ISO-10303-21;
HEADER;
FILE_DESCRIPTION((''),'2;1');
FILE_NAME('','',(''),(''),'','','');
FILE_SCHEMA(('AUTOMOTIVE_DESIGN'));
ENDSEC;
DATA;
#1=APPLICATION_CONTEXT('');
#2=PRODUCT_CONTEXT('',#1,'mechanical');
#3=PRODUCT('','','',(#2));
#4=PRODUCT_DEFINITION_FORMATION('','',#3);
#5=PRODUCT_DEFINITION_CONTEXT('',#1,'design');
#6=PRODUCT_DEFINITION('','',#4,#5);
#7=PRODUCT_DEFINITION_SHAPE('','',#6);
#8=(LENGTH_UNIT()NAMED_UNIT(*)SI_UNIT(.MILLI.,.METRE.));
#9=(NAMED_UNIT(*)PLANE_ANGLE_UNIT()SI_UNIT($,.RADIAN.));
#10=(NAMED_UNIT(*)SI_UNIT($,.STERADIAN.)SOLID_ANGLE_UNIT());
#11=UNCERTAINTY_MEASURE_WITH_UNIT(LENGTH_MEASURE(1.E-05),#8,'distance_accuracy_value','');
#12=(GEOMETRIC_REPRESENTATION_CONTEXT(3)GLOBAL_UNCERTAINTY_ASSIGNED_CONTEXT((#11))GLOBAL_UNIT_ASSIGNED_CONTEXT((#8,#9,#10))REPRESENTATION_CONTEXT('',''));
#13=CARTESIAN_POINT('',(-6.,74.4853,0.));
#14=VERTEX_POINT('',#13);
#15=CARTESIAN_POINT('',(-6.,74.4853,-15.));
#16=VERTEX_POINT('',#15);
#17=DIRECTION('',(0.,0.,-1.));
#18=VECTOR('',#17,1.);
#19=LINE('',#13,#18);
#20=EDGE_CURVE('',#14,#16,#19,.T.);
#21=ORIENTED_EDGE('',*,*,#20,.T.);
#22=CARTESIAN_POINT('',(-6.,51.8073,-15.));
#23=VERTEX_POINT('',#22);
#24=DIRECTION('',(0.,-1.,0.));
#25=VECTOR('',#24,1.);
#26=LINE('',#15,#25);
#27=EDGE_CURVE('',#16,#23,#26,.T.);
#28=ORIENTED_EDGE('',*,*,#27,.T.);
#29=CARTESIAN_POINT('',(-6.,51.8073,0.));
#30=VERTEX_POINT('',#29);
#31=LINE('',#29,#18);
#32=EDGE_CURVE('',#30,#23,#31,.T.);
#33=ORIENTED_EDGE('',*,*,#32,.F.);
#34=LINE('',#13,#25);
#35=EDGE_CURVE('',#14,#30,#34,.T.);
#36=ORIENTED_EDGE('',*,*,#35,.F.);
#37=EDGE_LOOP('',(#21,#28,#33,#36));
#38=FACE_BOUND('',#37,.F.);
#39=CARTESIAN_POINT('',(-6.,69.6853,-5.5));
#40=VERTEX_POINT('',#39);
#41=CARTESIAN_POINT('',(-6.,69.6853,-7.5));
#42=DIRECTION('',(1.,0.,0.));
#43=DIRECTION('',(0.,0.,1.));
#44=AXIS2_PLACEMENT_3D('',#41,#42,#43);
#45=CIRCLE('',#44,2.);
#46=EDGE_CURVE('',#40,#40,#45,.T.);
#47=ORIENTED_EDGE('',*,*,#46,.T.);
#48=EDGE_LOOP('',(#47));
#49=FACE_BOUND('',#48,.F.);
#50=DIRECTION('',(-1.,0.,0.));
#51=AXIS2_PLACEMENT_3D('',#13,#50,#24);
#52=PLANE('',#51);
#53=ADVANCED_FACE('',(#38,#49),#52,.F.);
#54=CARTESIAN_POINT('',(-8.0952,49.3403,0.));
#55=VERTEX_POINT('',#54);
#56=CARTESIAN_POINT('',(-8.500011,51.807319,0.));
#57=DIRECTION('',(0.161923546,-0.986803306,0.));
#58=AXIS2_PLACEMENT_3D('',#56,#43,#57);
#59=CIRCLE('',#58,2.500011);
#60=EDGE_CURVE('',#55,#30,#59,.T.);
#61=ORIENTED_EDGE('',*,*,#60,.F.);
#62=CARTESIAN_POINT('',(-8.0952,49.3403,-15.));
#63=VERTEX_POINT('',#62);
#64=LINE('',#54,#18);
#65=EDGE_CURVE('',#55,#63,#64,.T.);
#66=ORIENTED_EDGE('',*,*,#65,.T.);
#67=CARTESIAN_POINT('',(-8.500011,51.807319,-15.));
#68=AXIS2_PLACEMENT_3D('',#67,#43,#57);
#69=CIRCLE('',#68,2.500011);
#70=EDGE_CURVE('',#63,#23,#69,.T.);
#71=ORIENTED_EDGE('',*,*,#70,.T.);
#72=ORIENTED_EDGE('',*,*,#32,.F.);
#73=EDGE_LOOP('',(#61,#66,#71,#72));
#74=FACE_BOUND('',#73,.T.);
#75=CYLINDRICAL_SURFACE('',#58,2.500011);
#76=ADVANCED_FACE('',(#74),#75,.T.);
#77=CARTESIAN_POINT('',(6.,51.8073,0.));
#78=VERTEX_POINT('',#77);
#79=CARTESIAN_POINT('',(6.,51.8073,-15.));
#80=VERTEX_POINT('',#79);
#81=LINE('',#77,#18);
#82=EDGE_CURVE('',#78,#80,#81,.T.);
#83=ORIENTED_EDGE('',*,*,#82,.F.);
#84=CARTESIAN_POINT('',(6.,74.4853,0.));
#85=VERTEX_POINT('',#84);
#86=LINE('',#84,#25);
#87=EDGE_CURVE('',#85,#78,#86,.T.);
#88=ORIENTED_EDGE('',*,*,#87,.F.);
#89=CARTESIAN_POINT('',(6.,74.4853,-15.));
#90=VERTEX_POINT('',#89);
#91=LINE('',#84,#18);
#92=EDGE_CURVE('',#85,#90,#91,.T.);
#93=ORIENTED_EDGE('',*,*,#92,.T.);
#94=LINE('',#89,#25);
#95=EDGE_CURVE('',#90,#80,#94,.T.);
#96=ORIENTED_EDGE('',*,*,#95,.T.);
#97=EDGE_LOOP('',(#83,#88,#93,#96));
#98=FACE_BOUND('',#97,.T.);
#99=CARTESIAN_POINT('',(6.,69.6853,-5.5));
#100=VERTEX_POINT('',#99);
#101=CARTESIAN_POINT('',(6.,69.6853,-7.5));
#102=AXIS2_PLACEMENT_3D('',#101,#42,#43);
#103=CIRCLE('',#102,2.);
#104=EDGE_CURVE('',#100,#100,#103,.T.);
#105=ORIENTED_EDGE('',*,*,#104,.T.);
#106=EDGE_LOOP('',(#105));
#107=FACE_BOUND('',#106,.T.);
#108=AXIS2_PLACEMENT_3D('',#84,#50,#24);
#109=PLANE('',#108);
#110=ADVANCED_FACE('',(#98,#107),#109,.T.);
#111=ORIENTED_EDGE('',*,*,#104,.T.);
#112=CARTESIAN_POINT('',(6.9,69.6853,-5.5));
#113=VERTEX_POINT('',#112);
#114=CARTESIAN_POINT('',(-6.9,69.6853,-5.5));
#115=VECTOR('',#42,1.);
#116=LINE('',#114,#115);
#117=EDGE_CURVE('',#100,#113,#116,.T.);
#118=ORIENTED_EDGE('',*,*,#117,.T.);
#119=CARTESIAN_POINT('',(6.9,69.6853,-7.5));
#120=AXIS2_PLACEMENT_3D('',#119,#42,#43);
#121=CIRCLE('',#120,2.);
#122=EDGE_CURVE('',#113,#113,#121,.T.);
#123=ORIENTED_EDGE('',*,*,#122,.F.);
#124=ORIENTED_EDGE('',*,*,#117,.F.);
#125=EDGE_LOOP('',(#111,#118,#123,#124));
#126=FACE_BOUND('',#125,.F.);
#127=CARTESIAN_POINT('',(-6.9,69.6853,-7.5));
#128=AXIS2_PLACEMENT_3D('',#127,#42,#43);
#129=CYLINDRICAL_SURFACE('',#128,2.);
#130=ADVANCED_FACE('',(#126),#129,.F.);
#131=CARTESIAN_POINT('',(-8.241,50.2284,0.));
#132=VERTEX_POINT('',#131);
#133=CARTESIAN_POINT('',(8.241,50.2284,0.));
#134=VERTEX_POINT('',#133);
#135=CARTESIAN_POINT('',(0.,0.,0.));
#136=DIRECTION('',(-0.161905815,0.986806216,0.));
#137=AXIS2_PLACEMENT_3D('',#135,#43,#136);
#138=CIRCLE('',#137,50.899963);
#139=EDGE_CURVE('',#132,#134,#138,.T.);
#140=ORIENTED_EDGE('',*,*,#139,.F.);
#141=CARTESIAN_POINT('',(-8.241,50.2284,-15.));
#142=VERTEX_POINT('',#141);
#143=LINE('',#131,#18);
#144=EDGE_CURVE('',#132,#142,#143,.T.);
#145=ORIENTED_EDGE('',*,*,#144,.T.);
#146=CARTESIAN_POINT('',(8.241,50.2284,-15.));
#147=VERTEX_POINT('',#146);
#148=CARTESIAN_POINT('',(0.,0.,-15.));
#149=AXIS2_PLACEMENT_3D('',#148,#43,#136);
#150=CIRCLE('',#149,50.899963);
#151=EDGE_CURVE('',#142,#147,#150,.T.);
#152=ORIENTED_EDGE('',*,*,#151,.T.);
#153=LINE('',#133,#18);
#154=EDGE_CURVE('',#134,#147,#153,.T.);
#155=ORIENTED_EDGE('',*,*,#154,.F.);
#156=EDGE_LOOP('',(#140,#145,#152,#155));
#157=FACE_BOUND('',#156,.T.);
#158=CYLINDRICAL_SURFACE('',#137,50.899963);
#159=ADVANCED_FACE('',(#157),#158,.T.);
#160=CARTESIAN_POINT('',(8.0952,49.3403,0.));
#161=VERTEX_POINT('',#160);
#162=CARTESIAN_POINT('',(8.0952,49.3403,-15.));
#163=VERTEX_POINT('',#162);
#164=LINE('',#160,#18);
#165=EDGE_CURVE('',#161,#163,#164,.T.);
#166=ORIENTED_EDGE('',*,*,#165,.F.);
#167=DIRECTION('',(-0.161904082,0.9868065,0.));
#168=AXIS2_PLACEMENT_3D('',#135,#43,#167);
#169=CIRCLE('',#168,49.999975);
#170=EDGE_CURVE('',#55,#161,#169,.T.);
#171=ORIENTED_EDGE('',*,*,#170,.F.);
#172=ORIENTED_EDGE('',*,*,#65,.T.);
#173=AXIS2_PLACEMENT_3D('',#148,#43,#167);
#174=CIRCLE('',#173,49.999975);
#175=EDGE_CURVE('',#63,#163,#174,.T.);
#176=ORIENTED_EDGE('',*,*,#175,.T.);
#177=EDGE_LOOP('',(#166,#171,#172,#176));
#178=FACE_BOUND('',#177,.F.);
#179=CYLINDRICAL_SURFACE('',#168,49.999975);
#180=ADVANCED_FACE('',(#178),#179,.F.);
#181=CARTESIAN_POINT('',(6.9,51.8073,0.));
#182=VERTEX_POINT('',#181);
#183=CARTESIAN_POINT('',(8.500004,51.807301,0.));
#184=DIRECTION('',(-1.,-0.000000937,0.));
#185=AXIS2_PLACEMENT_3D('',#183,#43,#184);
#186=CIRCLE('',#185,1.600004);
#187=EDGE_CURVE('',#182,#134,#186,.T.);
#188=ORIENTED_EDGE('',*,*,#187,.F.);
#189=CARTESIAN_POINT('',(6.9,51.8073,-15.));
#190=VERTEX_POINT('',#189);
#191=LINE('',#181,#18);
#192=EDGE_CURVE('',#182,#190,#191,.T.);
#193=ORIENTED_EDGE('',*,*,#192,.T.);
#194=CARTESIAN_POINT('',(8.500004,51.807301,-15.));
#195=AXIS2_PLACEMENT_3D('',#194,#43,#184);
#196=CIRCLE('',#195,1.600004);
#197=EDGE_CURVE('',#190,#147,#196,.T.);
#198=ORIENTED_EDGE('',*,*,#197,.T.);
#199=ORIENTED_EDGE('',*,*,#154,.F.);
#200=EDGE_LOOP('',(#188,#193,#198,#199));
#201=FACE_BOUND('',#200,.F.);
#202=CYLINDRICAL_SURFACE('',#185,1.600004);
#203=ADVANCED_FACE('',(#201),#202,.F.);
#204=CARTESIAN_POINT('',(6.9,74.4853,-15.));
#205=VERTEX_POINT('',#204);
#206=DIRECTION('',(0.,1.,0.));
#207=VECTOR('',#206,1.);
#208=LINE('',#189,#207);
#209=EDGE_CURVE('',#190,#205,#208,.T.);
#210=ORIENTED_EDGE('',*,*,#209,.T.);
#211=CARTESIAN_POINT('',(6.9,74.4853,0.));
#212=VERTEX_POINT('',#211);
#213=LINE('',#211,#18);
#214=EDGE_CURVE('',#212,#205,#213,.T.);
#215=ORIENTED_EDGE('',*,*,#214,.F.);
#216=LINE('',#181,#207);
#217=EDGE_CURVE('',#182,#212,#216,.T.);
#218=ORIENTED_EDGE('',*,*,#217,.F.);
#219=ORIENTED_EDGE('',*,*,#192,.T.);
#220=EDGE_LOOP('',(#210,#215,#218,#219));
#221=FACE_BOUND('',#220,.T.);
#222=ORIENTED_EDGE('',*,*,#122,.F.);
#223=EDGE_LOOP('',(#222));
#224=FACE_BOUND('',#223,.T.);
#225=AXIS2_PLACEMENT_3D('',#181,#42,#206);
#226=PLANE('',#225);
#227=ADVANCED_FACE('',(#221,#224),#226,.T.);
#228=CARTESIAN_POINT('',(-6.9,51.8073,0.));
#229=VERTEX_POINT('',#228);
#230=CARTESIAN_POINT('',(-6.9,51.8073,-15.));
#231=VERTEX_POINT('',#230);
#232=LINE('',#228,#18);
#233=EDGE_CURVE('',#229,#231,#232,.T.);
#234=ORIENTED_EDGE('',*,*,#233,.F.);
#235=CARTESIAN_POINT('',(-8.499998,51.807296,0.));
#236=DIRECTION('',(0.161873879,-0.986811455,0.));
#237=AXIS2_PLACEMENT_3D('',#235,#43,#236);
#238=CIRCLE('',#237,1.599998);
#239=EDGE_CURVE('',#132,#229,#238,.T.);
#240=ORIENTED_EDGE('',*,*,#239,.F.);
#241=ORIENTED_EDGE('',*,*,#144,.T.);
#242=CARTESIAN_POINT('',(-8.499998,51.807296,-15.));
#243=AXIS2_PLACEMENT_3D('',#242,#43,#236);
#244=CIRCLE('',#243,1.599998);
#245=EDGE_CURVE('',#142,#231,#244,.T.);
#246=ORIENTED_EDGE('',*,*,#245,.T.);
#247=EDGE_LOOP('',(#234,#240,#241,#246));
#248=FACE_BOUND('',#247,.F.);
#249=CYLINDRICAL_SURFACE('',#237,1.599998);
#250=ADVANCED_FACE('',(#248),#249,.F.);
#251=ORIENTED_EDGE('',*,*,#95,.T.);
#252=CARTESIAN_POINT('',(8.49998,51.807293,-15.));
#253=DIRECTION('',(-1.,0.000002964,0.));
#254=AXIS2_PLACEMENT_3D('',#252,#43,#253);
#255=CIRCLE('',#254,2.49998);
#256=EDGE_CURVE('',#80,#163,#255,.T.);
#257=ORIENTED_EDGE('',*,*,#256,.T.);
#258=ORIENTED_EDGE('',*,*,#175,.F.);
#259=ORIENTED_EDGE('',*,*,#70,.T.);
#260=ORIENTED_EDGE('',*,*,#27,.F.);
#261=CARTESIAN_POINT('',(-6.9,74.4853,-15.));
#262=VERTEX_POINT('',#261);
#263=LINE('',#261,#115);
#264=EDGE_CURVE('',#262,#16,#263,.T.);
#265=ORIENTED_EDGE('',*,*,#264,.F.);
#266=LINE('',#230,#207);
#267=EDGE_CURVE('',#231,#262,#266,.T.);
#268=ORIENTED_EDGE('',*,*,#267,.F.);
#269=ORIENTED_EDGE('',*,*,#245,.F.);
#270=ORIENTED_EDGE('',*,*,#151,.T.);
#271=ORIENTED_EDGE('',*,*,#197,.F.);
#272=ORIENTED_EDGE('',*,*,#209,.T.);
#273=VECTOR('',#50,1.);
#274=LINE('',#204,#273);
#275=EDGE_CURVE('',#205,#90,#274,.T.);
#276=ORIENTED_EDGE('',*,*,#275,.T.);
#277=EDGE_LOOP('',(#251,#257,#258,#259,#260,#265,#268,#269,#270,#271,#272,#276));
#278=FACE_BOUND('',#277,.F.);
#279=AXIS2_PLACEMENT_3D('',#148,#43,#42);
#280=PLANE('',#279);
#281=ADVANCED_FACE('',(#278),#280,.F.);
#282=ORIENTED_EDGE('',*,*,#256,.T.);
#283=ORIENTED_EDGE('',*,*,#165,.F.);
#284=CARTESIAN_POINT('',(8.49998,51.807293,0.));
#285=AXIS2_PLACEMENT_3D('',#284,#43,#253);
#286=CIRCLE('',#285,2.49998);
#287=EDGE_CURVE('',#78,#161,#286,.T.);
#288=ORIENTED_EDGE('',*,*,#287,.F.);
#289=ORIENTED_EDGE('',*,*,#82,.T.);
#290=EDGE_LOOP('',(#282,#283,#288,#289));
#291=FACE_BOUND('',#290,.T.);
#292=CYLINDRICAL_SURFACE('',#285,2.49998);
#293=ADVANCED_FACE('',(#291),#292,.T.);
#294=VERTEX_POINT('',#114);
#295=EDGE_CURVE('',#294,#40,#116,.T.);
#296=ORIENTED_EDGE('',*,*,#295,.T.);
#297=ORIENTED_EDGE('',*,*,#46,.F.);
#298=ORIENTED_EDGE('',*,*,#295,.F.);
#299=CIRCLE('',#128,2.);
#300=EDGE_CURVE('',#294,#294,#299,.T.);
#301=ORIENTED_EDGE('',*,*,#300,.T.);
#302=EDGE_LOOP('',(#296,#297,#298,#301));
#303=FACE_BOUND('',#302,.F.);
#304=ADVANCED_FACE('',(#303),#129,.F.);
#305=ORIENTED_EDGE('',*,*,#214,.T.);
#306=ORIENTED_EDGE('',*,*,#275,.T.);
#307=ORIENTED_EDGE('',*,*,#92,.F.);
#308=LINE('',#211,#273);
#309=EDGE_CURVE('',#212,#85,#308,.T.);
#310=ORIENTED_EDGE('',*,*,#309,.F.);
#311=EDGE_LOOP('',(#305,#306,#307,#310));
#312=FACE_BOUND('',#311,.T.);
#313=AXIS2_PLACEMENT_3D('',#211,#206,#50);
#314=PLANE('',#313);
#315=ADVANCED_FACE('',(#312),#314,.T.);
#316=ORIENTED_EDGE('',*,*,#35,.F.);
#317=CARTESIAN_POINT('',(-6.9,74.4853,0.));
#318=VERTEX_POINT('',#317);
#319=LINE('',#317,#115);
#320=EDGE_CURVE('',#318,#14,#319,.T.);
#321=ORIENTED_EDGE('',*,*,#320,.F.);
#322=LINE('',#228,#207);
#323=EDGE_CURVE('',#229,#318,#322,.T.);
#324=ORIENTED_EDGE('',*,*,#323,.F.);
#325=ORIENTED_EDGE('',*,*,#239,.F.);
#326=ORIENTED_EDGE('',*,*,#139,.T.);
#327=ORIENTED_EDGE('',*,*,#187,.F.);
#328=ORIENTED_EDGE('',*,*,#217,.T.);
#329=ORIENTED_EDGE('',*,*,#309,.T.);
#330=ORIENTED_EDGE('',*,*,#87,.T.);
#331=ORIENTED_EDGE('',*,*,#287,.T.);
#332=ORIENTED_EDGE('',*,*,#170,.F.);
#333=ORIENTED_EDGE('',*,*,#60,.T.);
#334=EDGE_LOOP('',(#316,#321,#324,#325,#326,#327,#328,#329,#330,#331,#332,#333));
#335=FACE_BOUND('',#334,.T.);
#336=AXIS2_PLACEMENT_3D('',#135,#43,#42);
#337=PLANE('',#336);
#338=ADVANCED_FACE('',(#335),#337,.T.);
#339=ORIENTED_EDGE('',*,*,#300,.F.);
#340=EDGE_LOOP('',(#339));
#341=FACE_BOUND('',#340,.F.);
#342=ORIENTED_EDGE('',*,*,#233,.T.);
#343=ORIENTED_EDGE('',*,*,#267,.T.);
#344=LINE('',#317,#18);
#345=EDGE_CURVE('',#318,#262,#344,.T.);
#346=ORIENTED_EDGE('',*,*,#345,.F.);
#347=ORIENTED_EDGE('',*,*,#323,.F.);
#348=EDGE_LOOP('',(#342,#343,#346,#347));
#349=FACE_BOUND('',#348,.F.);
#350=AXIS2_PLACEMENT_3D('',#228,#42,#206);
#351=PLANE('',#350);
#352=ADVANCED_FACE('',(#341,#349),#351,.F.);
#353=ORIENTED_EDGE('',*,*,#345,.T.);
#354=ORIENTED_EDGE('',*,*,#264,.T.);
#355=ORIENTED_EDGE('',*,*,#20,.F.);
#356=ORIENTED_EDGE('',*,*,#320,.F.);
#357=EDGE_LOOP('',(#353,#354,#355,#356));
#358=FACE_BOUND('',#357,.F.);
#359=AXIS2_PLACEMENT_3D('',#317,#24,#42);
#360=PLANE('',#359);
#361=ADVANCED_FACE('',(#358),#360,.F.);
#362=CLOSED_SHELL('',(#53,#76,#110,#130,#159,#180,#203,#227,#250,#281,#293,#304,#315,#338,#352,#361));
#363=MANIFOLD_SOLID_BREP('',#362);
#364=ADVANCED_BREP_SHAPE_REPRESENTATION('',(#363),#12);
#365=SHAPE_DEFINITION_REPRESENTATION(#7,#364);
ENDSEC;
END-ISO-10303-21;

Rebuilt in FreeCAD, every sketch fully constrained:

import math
import FreeCAD as App
import Part
import Sketcher
from FreeCAD import Vector

doc = App.newDocument("Part")
params = doc.addObject("Spreadsheet::Sheet", "Params")
for row, (alias, value) in enumerate([
    ("sketch1_radius", "50 mm"),
    ("sketch1_radius2", "2.5 mm"),
    ("sketch1_radius3", "50.9 mm"),
    ("pad1_length", "15 mm"),
    ("sketch2_diameter", "4 mm"),
    ("hole_diameter", "4 mm"),
    ("hole_depth", "25 mm"),
], start=1):
    params.set(f"A{row}", alias)
    params.set(f"B{row}", "=" + value)
    params.setAlias(f"B{row}", alias)

body = doc.addObject("PartDesign::Body", "Body")

# Sketch on XY plane
sketch1 = body.newObject("Sketcher::SketchObject", "Sketch")
sketch1.AttachmentSupport = (doc.getObject("XY_Plane"), [""])
sketch1.MapMode = "FlatFace"
sketch1.addGeometry(Part.ArcOfCircle(Part.Circle(Vector(0, 0, 0), Vector(0, 0, 1), 49.999975), math.radians(99.317433), math.radians(440.682567)), False)
sketch1.addGeometry(Part.ArcOfCircle(Part.Circle(Vector(-8.5, 51.8073, 0), Vector(0, 0, 1), 2.49999), math.radians(-80.681606), math.radians(0)), False)
sketch1.addGeometry(Part.LineSegment(Vector(-6, 51.8073, 0), Vector(-6, 74.4853, 0)), False)
sketch1.addGeometry(Part.LineSegment(Vector(-6, 74.4853, 0), Vector(-6.9, 74.4853, 0)), False)
sketch1.addGeometry(Part.LineSegment(Vector(-6.9, 74.4853, 0), Vector(-6.9, 51.8073, 0)), False)
sketch1.addGeometry(Part.ArcOfCircle(Part.Circle(Vector(-8.5, 51.8073, 0), Vector(0, 0, 1), 1.600002), math.radians(-80.684267), math.radians(0)), False)
sketch1.addGeometry(Part.ArcOfCircle(Part.Circle(Vector(0, 0, 0), Vector(0, 0, 1), 50.899963), math.radians(99.317534), math.radians(440.682466)), False)
sketch1.addGeometry(Part.ArcOfCircle(Part.Circle(Vector(8.5, 51.8073, 0), Vector(0, 0, 1), 1.6), math.radians(180), math.radians(260.684267)), False)
sketch1.addGeometry(Part.LineSegment(Vector(6.9, 51.8073, 0), Vector(6.9, 74.4853, 0)), False)
sketch1.addGeometry(Part.LineSegment(Vector(6.9, 74.4853, 0), Vector(6, 74.4853, 0)), False)
sketch1.addGeometry(Part.LineSegment(Vector(6, 74.4853, 0), Vector(6, 51.8073, 0)), False)
sketch1.addGeometry(Part.ArcOfCircle(Part.Circle(Vector(8.5, 51.8073, 0), Vector(0, 0, 1), 2.5), math.radians(180), math.radians(260.681606)), False)
sketch1.addConstraint(Sketcher.Constraint("Tangent", 0, 1, 1, 1))
sketch1.addConstraint(Sketcher.Constraint("Tangent", 1, 2, 2, 1))
sketch1.addConstraint(Sketcher.Constraint("Coincident", 2, 2, 3, 1))
sketch1.addConstraint(Sketcher.Constraint("Coincident", 3, 2, 4, 1))
sketch1.addConstraint(Sketcher.Constraint("Tangent", 4, 2, 5, 2))
sketch1.addConstraint(Sketcher.Constraint("Tangent", 5, 1, 6, 1))
sketch1.addConstraint(Sketcher.Constraint("Tangent", 6, 2, 7, 2))
sketch1.addConstraint(Sketcher.Constraint("Tangent", 7, 1, 8, 1))
sketch1.addConstraint(Sketcher.Constraint("Coincident", 8, 2, 9, 1))
sketch1.addConstraint(Sketcher.Constraint("Coincident", 9, 2, 10, 1))
sketch1.addConstraint(Sketcher.Constraint("Tangent", 10, 2, 11, 1))
sketch1.addConstraint(Sketcher.Constraint("Tangent", 11, 2, 0, 2))
sketch1.addConstraint(Sketcher.Constraint("Vertical", 2))
sketch1.addConstraint(Sketcher.Constraint("Horizontal", 3))
sketch1.addConstraint(Sketcher.Constraint("Vertical", 4))
sketch1.addConstraint(Sketcher.Constraint("Vertical", 8))
sketch1.addConstraint(Sketcher.Constraint("Horizontal", 9))
sketch1.addConstraint(Sketcher.Constraint("Vertical", 10))
sketch1.addConstraint(Sketcher.Constraint("Coincident", 0, 3, -1, 1))
sketch1.addConstraint(Sketcher.Constraint("Coincident", 6, 3, -1, 1))
sketch1.addConstraint(Sketcher.Constraint("Coincident", 5, 3, 1, 3))
sketch1.addConstraint(Sketcher.Constraint("Coincident", 11, 3, 7, 3))
sketch1.addConstraint(Sketcher.Constraint("Equal", 5, 7))
sketch1.addConstraint(Sketcher.Constraint("Symmetric", 3, 2, 8, 2, -2))
sketch1.addConstraint(Sketcher.Constraint("Radius", 0, 50.0))
sketch1.addConstraint(Sketcher.Constraint("Radius", 1, 2.5))
sketch1.addConstraint(Sketcher.Constraint("Radius", 6, 50.9))
sketch1.addConstraint(Sketcher.Constraint("DistanceX", 1, 2, -1, 1, 6.0))
sketch1.addConstraint(Sketcher.Constraint("DistanceY", 2, 1, 2, 2, 22.678))
sketch1.setExpression("Constraints[24]", "Params.sketch1_radius")
sketch1.setExpression("Constraints[25]", "Params.sketch1_radius2")
sketch1.setExpression("Constraints[26]", "Params.sketch1_radius3")
pad1 = body.newObject("PartDesign::Pad", "Pad")
pad1.Profile = sketch1
pad1.setExpression("Length", "Params.pad1_length")
pad1.Reversed = True

# Sketch on YZ plane
sketch2 = body.newObject("Sketcher::SketchObject", "Sketch001")
sketch2.AttachmentSupport = (doc.getObject("YZ_Plane"), [""])
sketch2.MapMode = "FlatFace"
sketch2.AttachmentOffset = App.Placement(Vector(0, 0, -6.9), App.Rotation())
sketch2.addGeometry(Part.Circle(Vector(69.6853, -7.5, 0), Vector(0, 0, 1), 2), False)
sketch2.addConstraint(Sketcher.Constraint("Diameter", 0, 4.0))
sketch2.addConstraint(Sketcher.Constraint("DistanceY", 0, 3, -1, 1, 7.5))
sketch2.addConstraint(Sketcher.Constraint("DistanceX", -1, 1, 0, 3, 69.6853))
sketch2.setExpression("Constraints[0]", "Params.sketch2_diameter")
doc.recompute()
hole = body.newObject("PartDesign::Hole", "Hole")
hole.Profile = sketch2
hole.ThreadType = "None"
hole.setExpression("Diameter", "Params.hole_diameter")
hole.DepthType = "Dimension"
hole.setExpression("Depth", "Params.hole_depth")
hole.DrillPoint = "Angled"
hole.DrillPointAngle = 137
hole.Reversed = True

doc.recompute()
